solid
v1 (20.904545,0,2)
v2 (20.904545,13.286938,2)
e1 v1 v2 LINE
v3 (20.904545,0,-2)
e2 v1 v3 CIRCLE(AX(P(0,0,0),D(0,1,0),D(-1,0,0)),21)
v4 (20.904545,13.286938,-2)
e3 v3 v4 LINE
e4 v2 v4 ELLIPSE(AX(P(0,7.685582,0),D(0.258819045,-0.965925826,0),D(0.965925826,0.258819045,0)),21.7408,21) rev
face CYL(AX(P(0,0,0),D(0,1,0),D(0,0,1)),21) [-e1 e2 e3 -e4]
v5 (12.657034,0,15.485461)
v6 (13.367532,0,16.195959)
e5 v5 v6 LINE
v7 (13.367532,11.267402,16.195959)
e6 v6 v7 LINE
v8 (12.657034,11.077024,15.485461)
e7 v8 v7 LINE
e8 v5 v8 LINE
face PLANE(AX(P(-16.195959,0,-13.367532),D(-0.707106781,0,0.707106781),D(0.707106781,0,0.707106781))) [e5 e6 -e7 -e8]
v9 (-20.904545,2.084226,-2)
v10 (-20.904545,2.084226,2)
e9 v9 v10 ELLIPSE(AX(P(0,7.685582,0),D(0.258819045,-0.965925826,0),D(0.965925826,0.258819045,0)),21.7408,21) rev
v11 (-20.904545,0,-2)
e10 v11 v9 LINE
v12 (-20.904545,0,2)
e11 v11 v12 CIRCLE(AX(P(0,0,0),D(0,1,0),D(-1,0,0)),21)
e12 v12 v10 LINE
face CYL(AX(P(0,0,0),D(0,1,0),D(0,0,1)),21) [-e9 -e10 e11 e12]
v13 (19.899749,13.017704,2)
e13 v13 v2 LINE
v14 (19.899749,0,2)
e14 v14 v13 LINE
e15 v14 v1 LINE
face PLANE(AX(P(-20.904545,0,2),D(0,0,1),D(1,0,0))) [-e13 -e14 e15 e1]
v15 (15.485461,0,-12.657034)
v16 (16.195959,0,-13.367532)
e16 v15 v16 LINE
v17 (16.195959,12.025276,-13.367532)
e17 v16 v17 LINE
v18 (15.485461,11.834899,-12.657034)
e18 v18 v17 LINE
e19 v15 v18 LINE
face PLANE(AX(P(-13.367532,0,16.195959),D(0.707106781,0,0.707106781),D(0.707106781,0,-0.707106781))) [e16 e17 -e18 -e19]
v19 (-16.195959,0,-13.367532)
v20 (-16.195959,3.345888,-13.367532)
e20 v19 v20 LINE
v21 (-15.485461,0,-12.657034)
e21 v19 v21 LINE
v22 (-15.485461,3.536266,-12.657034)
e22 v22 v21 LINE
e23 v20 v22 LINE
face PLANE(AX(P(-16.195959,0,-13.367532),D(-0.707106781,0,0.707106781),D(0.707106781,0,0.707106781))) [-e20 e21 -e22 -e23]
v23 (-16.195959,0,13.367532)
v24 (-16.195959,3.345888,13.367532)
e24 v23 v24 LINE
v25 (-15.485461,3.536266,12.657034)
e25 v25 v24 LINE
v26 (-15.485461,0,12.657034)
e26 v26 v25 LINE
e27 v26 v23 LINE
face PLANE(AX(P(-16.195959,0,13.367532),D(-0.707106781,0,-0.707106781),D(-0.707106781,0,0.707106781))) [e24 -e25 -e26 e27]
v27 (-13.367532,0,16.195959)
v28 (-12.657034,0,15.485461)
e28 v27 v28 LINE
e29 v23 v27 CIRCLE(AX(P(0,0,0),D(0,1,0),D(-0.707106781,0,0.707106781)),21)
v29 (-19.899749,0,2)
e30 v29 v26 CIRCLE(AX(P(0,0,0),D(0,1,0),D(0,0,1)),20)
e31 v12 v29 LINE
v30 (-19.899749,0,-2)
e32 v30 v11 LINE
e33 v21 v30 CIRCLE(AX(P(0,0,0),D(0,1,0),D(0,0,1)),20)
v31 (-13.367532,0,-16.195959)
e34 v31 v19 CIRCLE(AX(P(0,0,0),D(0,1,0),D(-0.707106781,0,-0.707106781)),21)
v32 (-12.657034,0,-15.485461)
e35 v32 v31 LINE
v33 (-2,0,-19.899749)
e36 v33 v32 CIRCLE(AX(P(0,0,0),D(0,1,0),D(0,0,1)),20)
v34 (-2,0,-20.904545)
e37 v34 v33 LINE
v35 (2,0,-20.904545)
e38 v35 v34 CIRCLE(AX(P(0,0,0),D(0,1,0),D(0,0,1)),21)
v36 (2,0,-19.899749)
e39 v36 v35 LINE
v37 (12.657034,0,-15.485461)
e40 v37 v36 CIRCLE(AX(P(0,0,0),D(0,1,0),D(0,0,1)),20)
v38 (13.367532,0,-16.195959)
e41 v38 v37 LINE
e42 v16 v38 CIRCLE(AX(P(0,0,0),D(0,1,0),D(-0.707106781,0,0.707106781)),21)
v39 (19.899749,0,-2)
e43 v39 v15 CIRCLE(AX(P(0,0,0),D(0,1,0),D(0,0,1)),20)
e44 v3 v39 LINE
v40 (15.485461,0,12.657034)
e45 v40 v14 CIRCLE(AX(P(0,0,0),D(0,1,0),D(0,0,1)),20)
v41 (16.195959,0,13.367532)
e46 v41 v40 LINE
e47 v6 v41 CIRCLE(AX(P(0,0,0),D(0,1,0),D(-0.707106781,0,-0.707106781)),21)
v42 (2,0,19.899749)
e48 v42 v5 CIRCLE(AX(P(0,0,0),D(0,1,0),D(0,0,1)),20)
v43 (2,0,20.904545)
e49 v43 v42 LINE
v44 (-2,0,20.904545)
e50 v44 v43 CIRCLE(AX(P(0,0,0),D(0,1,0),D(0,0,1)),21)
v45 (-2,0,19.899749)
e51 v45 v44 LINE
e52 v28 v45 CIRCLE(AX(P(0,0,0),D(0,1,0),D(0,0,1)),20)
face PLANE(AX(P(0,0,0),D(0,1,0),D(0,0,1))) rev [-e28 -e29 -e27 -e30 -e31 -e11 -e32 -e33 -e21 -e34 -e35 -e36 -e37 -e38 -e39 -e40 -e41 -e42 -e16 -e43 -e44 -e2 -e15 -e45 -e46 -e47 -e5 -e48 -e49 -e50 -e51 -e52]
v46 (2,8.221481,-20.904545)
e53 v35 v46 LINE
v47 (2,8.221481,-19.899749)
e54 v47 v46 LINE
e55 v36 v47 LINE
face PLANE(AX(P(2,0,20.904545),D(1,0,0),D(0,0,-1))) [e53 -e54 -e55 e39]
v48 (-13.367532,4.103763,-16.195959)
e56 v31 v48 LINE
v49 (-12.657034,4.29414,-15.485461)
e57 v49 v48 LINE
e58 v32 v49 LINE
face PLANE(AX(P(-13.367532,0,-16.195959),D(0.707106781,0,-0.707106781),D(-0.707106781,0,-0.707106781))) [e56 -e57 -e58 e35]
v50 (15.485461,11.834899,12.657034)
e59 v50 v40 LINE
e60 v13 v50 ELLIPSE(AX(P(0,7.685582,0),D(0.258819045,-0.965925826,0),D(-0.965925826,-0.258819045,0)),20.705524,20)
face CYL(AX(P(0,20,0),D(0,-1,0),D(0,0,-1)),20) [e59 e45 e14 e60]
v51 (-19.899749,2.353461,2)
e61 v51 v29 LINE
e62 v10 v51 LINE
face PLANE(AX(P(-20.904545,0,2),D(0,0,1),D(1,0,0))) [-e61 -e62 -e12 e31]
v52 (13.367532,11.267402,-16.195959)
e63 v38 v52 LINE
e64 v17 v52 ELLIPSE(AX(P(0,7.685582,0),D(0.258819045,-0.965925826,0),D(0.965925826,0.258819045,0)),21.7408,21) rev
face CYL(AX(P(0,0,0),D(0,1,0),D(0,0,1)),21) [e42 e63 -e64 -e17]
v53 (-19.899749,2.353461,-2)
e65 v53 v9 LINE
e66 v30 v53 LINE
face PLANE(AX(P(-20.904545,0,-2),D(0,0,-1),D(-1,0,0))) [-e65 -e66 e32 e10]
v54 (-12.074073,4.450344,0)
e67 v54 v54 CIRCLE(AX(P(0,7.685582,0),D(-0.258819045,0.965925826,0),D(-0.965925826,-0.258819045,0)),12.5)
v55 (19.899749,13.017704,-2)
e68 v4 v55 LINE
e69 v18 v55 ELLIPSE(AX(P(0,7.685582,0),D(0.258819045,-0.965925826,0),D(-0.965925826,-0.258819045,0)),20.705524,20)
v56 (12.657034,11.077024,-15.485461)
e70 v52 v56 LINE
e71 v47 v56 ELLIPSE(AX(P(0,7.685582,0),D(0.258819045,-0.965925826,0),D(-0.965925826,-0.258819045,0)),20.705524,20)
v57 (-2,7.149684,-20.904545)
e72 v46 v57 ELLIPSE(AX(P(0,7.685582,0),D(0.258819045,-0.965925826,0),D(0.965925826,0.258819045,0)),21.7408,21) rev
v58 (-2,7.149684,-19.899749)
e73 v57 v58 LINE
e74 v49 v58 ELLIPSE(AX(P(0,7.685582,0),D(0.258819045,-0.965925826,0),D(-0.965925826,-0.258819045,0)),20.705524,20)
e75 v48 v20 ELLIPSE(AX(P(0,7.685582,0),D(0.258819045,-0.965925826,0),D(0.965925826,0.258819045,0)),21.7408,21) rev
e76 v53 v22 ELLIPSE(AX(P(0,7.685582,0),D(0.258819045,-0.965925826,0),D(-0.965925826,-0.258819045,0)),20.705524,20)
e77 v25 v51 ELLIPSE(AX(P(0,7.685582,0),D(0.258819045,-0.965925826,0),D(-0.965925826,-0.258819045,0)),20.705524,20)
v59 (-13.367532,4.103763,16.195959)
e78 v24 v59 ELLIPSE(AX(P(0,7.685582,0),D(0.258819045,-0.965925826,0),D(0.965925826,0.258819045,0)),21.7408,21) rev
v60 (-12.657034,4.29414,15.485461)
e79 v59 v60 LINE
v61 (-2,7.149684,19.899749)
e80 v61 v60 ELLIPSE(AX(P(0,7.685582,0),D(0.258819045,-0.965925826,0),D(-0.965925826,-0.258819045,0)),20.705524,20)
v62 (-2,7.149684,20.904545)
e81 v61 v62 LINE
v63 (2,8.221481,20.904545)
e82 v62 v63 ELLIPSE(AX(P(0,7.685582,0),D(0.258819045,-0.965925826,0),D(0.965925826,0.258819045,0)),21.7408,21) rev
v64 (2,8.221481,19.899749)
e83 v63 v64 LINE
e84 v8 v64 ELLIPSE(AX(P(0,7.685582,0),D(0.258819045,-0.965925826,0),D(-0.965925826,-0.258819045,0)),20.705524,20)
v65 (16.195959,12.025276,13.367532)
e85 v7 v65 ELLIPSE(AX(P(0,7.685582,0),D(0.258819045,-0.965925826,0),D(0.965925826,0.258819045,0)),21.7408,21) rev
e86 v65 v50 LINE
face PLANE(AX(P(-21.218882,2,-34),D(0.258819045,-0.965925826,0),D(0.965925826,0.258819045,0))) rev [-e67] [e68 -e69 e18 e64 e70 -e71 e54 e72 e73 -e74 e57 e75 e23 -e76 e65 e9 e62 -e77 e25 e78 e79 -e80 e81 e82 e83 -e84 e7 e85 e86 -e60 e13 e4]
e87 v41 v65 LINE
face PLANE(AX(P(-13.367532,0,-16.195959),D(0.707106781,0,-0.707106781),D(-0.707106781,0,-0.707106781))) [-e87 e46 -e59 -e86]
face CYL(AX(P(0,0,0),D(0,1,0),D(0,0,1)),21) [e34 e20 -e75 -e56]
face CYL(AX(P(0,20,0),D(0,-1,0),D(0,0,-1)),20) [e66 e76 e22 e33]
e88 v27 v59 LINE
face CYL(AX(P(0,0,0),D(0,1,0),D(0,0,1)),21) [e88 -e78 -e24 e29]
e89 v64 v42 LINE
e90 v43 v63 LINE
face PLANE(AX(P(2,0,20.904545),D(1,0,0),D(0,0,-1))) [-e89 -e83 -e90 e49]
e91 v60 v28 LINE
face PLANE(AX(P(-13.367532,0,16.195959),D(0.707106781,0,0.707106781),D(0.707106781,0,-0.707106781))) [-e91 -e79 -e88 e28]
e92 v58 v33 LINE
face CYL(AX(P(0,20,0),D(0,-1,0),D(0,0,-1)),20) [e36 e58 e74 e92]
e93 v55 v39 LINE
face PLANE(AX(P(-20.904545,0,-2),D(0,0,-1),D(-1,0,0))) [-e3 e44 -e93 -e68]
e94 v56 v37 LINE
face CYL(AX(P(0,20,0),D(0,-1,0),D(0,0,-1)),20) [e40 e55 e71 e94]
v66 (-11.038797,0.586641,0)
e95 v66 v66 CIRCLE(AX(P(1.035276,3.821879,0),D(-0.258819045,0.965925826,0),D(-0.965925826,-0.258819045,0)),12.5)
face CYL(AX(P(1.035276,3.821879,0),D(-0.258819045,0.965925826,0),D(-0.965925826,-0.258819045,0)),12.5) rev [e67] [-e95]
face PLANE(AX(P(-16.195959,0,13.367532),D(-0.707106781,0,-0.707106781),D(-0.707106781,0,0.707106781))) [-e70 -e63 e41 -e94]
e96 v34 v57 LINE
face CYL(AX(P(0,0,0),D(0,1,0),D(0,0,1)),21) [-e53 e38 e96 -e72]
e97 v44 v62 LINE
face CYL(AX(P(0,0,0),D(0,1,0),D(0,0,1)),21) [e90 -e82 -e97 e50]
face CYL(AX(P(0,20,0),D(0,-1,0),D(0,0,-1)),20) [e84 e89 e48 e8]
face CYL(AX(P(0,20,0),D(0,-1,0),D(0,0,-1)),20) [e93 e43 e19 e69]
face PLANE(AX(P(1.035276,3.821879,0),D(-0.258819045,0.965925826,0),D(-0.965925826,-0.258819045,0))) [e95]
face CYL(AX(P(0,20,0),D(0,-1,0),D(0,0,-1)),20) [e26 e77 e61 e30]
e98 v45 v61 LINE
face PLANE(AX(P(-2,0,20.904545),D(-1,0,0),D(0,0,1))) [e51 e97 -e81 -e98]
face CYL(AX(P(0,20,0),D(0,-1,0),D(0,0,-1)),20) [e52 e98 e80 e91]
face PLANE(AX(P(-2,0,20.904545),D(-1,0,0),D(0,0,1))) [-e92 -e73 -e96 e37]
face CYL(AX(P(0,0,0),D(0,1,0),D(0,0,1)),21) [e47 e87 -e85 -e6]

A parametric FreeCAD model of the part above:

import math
import FreeCAD as App
import Part
import Sketcher
Q = App.Units.Quantity


def add_polygon(sketch, points):
    """Adds a closed chain of lines whose ends are joined by coincident constraints."""
    first, n = sketch.GeometryCount, len(points)
    for a, b in zip(points, points[1:] + points[:1]):
        sketch.addGeometry(Part.LineSegment(App.Vector(*a, 0), App.Vector(*b, 0)), False)
    for i in range(n):
        sketch.addConstraint(Sketcher.Constraint("Coincident", first + i, 2, first + (i + 1) % n, 1))

doc = App.newDocument("Part")
body = doc.addObject("PartDesign::Body", "Body")

# Sketch on XZ plane
sketch1 = body.newObject("Sketcher::SketchObject", "Sketch")
sketch1.AttachmentSupport = (doc.getObject("XZ_Plane"), [""])
sketch1.MapMode = "FlatFace"
sketch1.addGeometry(Part.Circle(App.Vector(0, 0, 0), App.Vector(0, 0, 1), 20), False)
sketch1.addConstraint([
    Sketcher.Constraint("Coincident", 0, 3, -1, 1),
    Sketcher.Constraint("Diameter", 0, Q("40 mm")),
])
pad1 = body.newObject("PartDesign::Pad", "Pad")
pad1.Profile = sketch1
pad1.Length = 20
pad1.Reversed = True

# Sketch on XZ plane
sketch2 = body.newObject("Sketcher::SketchObject", "Sketch001")
sketch2.AttachmentSupport = (doc.getObject("XZ_Plane"), [""])
sketch2.MapMode = "FlatFace"
sketch2.AttachmentOffset = App.Placement(App.Vector(0, 0, -20), App.Rotation())
sketch2.addGeometry([
    Part.LineSegment(App.Vector(-2, -20.9, 0), App.Vector(-2, 20.9, 0)),
    Part.ArcOfCircle(Part.Circle(App.Vector(0, 0, 0), App.Vector(0, 0, 1), 21), math.radians(84.53), math.radians(95.47)),
    Part.LineSegment(App.Vector(2, 20.9, 0), App.Vector(2, -20.9, 0)),
    Part.ArcOfCircle(Part.Circle(App.Vector(0, 0, 0), App.Vector(0, 0, 1), 21), math.radians(-95.47), math.radians(-84.53)),
], False)
sketch2.addConstraint([
    Sketcher.Constraint("Coincident", 0, 2, 1, 2),
    Sketcher.Constraint("Coincident", 1, 1, 2, 1),
    Sketcher.Constraint("Coincident", 2, 2, 3, 2),
    Sketcher.Constraint("Coincident", 3, 1, 0, 1),
    Sketcher.Constraint("Vertical", 0),
    Sketcher.Constraint("Vertical", 2),
    Sketcher.Constraint("Coincident", 1, 3, -1, 1),
    Sketcher.Constraint("Coincident", 3, 3, -1, 1),
    Sketcher.Constraint("Equal", 1, 3),
    Sketcher.Constraint("Horizontal", 0, 2, 1, 1),
    Sketcher.Constraint("Radius", 1, Q("21 mm")),
    Sketcher.Constraint("DistanceX", 0, 2, -1, 1, Q("2 mm")),
])
pad2 = body.newObject("PartDesign::Pad", "Pad001")
pad2.Profile = sketch2
pad2.Length = 20
doc.recompute()

polarpattern = body.newObject("PartDesign::PolarPattern", "PolarPattern")
polarpattern.Originals = [pad2]
polarpattern.Axis = (doc.getObject("Y_Axis"), [""])
polarpattern.Angle = 360
polarpattern.Occurrences = 8
body.Tip = polarpattern

# Sketch on XY plane
sketch3 = body.newObject("Sketcher::SketchObject", "Sketch002")
sketch3.AttachmentSupport = (doc.getObject("XY_Plane"), [""])
sketch3.MapMode = "FlatFace"
add_polygon(sketch3, [(-21, 2), (26, 15), (26, 42), (-21, 44)])  # lines 0-3
sketch3.addConstraint([
    Sketcher.Constraint("Vertical", 1),
    Sketcher.Constraint("Vertical", 3),
    Sketcher.Constraint("Angle", 0, Q("15 deg")),
    Sketcher.Constraint("DistanceY", -1, 1, 3, 2, Q("2 mm")),
    Sketcher.Constraint("DistanceY", 1, 1, 1, 2, Q("26.950388 mm")),
    Sketcher.Constraint("DistanceY", 3, 2, 3, 1, Q("41.85785 mm")),
    Sketcher.Constraint("DistanceY", 1, 2, 2, 2, Q("2.3459 mm")),
    Sketcher.Constraint("DistanceX", -1, 1, 0, 2, Q("25.661502 mm")),
])
pocket1 = body.newObject("PartDesign::Pocket", "Pocket")
pocket1.Profile = sketch3
pocket1.Length = 68
pocket1.Midplane = True

# Sketch on an angled plane
sketch4 = body.newObject("Sketcher::SketchObject", "Sketch003")
sketch4.Placement = App.Placement(App.Vector(-1.921396, 7.170746, 0), App.Rotation(App.Vector(0.965925826, 0.258819045, 0), App.Vector(0, 0, -0.999999999), App.Vector(-0.258819045, 0.965925826, 0), "ZXY"))
sketch4.addGeometry(Part.Circle(App.Vector(2, 0, 0), App.Vector(0, 0, 1), 12), False)
sketch4.addConstraint([
    Sketcher.Constraint("PointOnObject", 0, 3, -1),
    Sketcher.Constraint("Diameter", 0, Q("25 mm")),
    Sketcher.Constraint("DistanceX", -1, 1, 0, 3, Q("1.989175 mm")),
])
pocket2 = body.newObject("PartDesign::Pocket", "Pocket001")
pocket2.Profile = sketch4
pocket2.Length = 4

doc.recompute()
